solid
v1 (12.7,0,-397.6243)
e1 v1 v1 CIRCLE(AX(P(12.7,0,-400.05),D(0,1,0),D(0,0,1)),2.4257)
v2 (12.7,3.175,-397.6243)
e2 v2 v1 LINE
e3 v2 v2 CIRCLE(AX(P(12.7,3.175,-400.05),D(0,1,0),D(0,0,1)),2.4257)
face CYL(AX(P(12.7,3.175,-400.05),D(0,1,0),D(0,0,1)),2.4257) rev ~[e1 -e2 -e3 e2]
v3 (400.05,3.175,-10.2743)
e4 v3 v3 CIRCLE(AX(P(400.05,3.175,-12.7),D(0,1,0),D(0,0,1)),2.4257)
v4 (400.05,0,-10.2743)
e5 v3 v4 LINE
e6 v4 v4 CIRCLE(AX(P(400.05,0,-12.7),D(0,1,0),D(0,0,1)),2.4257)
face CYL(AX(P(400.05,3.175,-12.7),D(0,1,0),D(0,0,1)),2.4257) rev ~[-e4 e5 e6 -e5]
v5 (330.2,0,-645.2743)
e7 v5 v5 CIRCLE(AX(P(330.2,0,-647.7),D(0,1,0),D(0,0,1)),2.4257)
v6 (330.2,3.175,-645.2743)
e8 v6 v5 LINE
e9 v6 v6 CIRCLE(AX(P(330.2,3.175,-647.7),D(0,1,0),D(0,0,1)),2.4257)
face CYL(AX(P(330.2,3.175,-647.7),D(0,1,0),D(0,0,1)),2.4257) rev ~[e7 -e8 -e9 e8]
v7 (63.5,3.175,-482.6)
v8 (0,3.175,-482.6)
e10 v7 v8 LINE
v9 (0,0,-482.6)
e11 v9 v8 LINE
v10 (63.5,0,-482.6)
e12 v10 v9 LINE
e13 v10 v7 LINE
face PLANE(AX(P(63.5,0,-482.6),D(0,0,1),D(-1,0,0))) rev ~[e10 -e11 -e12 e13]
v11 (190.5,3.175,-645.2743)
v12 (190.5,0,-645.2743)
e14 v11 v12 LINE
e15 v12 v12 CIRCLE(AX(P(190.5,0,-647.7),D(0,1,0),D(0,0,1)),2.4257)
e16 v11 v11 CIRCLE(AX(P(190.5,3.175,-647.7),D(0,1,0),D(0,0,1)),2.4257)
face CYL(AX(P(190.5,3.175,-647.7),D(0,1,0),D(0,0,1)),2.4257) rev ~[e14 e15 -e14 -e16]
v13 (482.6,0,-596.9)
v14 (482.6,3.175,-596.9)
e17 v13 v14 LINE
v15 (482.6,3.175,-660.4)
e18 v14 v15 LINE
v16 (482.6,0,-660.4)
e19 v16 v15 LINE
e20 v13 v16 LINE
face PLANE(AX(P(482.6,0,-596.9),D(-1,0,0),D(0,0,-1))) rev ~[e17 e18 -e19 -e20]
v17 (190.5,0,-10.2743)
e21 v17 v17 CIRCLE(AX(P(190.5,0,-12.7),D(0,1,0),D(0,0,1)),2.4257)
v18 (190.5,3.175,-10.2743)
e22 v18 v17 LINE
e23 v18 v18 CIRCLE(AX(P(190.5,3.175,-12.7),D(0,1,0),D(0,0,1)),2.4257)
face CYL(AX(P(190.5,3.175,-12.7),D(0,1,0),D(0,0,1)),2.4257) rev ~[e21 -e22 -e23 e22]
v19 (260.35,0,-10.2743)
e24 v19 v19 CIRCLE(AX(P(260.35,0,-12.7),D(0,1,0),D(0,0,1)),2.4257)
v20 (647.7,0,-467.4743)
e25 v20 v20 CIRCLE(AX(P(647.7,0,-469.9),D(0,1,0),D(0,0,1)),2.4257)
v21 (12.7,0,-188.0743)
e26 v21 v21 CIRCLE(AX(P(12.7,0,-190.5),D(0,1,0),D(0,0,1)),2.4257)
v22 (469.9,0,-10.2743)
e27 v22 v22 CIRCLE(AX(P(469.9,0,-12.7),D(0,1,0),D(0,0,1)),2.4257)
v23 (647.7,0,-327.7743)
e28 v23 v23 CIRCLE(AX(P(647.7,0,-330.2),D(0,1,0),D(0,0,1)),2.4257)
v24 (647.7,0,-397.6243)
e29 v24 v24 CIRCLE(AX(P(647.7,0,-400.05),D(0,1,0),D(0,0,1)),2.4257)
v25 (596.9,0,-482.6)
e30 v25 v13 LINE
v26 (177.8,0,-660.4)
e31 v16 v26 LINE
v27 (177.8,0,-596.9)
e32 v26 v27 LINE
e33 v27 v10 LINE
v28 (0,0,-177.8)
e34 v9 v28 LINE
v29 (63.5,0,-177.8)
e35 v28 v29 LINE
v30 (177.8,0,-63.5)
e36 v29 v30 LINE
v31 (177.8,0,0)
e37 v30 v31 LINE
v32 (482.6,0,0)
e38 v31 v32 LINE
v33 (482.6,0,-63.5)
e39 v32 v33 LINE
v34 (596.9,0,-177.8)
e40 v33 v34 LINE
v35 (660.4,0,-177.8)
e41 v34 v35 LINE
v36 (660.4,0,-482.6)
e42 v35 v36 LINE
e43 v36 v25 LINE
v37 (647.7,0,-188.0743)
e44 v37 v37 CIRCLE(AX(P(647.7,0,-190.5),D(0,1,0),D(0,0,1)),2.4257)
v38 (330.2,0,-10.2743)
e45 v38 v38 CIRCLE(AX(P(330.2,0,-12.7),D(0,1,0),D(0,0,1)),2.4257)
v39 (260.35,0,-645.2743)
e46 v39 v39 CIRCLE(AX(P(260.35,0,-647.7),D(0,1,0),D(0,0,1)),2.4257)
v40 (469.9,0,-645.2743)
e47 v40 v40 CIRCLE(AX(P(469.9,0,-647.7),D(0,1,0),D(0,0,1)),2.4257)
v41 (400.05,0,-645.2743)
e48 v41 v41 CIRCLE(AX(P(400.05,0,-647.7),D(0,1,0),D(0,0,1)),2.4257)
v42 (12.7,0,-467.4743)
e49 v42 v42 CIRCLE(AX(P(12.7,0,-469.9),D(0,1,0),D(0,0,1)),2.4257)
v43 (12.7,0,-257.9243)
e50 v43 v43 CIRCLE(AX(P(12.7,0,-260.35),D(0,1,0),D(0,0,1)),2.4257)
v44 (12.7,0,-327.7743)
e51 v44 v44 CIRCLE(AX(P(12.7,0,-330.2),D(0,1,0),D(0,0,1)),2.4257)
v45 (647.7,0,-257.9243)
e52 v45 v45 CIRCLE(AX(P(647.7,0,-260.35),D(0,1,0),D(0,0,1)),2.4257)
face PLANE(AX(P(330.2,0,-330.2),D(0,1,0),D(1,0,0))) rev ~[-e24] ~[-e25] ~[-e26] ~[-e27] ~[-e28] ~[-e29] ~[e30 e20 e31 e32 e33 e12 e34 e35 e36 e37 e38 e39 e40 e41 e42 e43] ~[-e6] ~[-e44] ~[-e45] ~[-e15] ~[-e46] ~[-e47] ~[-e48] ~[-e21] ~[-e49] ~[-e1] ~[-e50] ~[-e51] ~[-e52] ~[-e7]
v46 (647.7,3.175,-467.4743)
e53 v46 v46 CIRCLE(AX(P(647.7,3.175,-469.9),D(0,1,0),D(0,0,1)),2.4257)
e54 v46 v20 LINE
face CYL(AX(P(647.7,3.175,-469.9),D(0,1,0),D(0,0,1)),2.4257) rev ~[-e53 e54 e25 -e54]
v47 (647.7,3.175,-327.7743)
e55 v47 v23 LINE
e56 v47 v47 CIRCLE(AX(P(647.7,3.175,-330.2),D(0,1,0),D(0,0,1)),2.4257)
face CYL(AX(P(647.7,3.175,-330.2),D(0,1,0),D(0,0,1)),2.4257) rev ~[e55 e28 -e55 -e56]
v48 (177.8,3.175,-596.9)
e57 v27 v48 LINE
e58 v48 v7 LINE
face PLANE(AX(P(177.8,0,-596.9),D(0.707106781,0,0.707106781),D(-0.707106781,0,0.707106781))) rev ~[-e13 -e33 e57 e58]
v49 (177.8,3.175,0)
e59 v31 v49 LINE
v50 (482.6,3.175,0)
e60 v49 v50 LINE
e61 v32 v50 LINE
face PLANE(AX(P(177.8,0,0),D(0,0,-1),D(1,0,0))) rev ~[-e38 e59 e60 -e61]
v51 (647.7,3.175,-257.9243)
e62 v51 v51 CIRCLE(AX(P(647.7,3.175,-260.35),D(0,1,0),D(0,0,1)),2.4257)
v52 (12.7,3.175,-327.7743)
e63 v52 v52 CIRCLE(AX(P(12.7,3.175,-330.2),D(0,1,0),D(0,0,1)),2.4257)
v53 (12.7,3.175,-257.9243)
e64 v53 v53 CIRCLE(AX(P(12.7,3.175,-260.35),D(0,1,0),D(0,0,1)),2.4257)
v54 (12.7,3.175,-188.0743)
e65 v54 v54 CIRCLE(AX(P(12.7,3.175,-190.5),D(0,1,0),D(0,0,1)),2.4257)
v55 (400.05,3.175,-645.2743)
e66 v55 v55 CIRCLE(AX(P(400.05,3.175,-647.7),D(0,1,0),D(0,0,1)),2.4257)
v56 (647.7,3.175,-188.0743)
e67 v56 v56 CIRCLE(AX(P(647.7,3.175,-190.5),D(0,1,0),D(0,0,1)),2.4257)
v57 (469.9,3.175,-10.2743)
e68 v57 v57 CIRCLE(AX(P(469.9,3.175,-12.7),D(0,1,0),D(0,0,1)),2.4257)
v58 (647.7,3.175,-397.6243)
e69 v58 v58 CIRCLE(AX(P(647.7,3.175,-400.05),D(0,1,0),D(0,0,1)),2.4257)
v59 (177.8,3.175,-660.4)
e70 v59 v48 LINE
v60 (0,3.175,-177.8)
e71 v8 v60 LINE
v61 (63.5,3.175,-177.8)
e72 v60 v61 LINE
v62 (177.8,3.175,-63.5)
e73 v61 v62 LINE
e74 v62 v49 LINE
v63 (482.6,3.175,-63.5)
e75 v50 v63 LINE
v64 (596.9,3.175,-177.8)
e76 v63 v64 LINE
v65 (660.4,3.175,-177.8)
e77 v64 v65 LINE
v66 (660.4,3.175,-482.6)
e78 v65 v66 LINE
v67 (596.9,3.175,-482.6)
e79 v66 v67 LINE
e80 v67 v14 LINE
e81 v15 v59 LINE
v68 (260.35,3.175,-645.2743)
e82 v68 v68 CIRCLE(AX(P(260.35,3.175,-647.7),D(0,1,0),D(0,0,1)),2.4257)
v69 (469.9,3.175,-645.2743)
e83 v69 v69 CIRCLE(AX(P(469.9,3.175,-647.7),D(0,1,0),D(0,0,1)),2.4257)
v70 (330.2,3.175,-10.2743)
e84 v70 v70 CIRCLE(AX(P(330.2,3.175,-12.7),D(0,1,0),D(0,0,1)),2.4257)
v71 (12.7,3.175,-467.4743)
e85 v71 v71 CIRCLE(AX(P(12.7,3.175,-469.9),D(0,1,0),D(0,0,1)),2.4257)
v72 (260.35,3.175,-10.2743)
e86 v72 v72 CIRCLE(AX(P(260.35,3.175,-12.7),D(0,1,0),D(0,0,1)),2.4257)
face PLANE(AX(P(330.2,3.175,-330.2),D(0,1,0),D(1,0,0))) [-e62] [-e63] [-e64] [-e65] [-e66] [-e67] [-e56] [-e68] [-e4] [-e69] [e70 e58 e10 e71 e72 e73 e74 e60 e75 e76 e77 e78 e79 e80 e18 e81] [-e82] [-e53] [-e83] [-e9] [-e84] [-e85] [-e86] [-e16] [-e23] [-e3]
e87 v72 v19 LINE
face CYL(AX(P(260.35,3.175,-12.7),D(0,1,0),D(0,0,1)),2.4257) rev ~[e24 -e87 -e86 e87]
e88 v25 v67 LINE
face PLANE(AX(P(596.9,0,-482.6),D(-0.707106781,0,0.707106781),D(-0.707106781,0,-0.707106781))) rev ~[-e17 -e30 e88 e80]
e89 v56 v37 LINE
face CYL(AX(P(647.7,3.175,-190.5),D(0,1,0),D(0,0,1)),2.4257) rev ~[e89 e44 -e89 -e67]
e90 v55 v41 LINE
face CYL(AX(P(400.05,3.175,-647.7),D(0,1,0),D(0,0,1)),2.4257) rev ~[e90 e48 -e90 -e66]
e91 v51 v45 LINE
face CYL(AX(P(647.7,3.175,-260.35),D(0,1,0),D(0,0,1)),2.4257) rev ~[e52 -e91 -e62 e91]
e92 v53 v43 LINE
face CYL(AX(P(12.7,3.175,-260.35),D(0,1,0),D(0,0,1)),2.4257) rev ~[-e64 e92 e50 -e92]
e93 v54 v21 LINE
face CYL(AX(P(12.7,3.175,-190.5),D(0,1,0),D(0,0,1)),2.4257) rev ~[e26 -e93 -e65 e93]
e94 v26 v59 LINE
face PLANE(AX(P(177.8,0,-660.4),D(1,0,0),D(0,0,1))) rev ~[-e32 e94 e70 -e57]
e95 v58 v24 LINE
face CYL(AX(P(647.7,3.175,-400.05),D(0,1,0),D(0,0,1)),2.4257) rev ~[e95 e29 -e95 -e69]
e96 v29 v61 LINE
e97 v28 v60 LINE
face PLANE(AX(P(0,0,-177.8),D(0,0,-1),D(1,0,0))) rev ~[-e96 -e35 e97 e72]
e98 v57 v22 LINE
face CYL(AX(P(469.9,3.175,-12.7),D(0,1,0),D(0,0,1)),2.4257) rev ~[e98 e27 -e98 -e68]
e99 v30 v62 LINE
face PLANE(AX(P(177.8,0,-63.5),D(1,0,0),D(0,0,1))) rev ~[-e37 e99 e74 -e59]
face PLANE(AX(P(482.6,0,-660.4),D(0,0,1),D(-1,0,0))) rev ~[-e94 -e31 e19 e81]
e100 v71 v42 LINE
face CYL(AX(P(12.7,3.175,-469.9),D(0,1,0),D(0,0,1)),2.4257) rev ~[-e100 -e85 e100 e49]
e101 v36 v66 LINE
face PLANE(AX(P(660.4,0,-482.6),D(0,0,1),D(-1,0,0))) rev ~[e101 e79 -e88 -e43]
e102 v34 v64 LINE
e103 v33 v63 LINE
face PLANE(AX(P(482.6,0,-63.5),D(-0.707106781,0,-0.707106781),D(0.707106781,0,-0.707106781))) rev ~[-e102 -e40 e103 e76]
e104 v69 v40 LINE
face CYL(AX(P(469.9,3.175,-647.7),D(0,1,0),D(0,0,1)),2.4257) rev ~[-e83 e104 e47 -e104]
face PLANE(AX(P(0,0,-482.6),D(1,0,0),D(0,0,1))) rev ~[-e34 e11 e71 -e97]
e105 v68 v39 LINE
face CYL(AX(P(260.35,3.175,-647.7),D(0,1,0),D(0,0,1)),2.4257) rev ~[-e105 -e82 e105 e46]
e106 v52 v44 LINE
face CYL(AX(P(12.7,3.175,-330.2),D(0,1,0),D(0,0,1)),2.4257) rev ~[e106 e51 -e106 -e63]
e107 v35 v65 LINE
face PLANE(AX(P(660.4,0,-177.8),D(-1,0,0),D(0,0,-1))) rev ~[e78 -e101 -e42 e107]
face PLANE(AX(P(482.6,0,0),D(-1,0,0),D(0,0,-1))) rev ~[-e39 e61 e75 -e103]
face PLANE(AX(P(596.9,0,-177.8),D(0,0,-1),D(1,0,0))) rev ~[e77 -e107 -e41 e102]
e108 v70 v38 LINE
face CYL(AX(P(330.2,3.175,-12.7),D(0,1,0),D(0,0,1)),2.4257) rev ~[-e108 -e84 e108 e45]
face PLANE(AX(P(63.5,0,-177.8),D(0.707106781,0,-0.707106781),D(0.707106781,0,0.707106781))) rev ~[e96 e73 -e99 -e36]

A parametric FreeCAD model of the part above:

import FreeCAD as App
import Part
import Sketcher
Q = App.Units.Quantity


def add_polygon(sketch, points):
    """Adds a closed chain of lines whose ends are joined by coincident constraints."""
    first, n = sketch.GeometryCount, len(points)
    for a, b in zip(points, points[1:] + points[:1]):
        sketch.addGeometry(Part.LineSegment(App.Vector(*a, 0), App.Vector(*b, 0)), False)
    for i in range(n):
        sketch.addConstraint(Sketcher.Constraint("Coincident", first + i, 2, first + (i + 1) % n, 1))

doc = App.newDocument("Part")
body = doc.addObject("PartDesign::Body", "Body")

sketch1 = body.newObject("Sketcher::SketchObject", "Sketch")
sketch1.AttachmentSupport = (doc.getObject("XZ_Plane"), [""])
sketch1.MapMode = "FlatFace"
add_polygon(sketch1, [(177.8, -596.9), (63.5, -482.6), (0, -482.6), (0, -177.8), (63.5, -177.8), (177.8, -63.5), (177.8, 0), (482.6, 0), (482.6, -63.5), (596.9, -177.8), (660.4, -177.8), (660.4, -482.6), (596.9, -482.6), (482.6, -596.9), (482.6, -660.4), (177.8, -660.4)])
sketch1.addConstraint([
    Sketcher.Constraint("Horizontal", 1),
    Sketcher.Constraint("Vertical", 2),
    Sketcher.Constraint("Horizontal", 3),
    Sketcher.Constraint("Vertical", 5),
    Sketcher.Constraint("Horizontal", 6),
    Sketcher.Constraint("Vertical", 7),
    Sketcher.Constraint("Horizontal", 9),
    Sketcher.Constraint("Vertical", 10),
    Sketcher.Constraint("Horizontal", 11),
    Sketcher.Constraint("Vertical", 13),
    Sketcher.Constraint("Horizontal", 14),
    Sketcher.Constraint("Vertical", 15),
    Sketcher.Constraint("PointOnObject", 1, 2, -2),
    Sketcher.Constraint("PointOnObject", 5, 2, -1),
    Sketcher.Constraint("Perpendicular", 0, 4),
    Sketcher.Constraint("Perpendicular", 4, 8),
    Sketcher.Constraint("Perpendicular", 8, 12),
    Sketcher.Constraint("Horizontal", 4, 2, 7, 2),
    Sketcher.Constraint("Horizontal", 3, 2, 8, 2),
    Sketcher.Constraint("Horizontal", 1, 2, 10, 2),
    Sketcher.Constraint("Horizontal", 12, 2, 15, 2),
    Sketcher.Constraint("Vertical", 0, 2, 3, 2),
    Sketcher.Constraint("Vertical", 8, 2, 11, 2),
    Sketcher.Constraint("Vertical", 7, 2, 12, 2),
    Sketcher.Constraint("Vertical", 5, 2, 14, 2),
    Sketcher.Constraint("Equal", 3, 9),
    Sketcher.Constraint("Equal", 14, 2),
    Sketcher.Constraint("Equal", 11, 5),
    Sketcher.Constraint("Equal", 7, 13),
    Sketcher.Constraint("DistanceX", 6, 1, 6, 2, Q("12 in")),
    Sketcher.Constraint("DistanceX", 1, 2, 1, 1, Q("2.5 in")),
    Sketcher.Constraint("DistanceY", 0, 2, -1, 1, Q("19 in")),
])
pad1 = body.newObject("PartDesign::Pad", "Pad")
pad1.Profile = sketch1
pad1.Length = Q("0.125 in")
pad1.Reversed = True

sketch2 = body.newObject("Sketcher::SketchObject", "Sketch001")
sketch2.AttachmentSupport = (doc.getObject("XZ_Plane"), [""])
sketch2.MapMode = "FlatFace"
sketch2.AttachmentOffset = App.Placement(App.Vector(0, 0, -0.125 * 25.4), App.Rotation())
sketch2.addGeometry([
    Part.Circle(App.Vector(190.5, -647.7, 0), App.Vector(0, 0, 1), 2.4257),
    Part.Circle(App.Vector(260.35, -647.7, 0), App.Vector(0, 0, 1), 2.4257),
    Part.Circle(App.Vector(469.9, -647.7, 0), App.Vector(0, 0, 1), 2.4257),
    Part.Circle(App.Vector(400.05, -647.7, 0), App.Vector(0, 0, 1), 2.4257),
    Part.Circle(App.Vector(330.2, -647.7, 0), App.Vector(0, 0, 1), 2.4257),
    Part.Circle(App.Vector(647.7, -469.9, 0), App.Vector(0, 0, 1), 2.4257),
    Part.Circle(App.Vector(647.7, -400.05, 0), App.Vector(0, 0, 1), 2.4257),
    Part.Circle(App.Vector(647.7, -330.2, 0), App.Vector(0, 0, 1), 2.4257),
    Part.Circle(App.Vector(647.7, -260.35, 0), App.Vector(0, 0, 1), 2.4257),
    Part.Circle(App.Vector(647.7, -190.5, 0), App.Vector(0, 0, 1), 2.4257),
    Part.Circle(App.Vector(469.9, -12.7, 0), App.Vector(0, 0, 1), 2.4257),
    Part.Circle(App.Vector(400.05, -12.7, 0), App.Vector(0, 0, 1), 2.4257),
    Part.Circle(App.Vector(330.2, -12.7, 0), App.Vector(0, 0, 1), 2.4257),
    Part.Circle(App.Vector(260.35, -12.7, 0), App.Vector(0, 0, 1), 2.4257),
    Part.Circle(App.Vector(190.5, -12.7, 0), App.Vector(0, 0, 1), 2.4257),
    Part.Circle(App.Vector(12.7, -190.5, 0), App.Vector(0, 0, 1), 2.4257),
    Part.Circle(App.Vector(12.7, -260.35, 0), App.Vector(0, 0, 1), 2.4257),
    Part.Circle(App.Vector(12.7, -330.2, 0), App.Vector(0, 0, 1), 2.4257),
    Part.Circle(App.Vector(12.7, -400.05, 0), App.Vector(0, 0, 1), 2.4257),
    Part.Circle(App.Vector(12.7, -469.9, 0), App.Vector(0, 0, 1), 2.4257),
], False)
sketch2.addConstraint([
    Sketcher.Constraint("Equal", 0, 1),
    Sketcher.Constraint("Equal", 1, 2),
    Sketcher.Constraint("Equal", 2, 3),
    Sketcher.Constraint("Equal", 3, 4),
    Sketcher.Constraint("Equal", 4, 5),
    Sketcher.Constraint("Equal", 5, 6),
    Sketcher.Constraint("Equal", 6, 7),
    Sketcher.Constraint("Equal", 7, 8),
    Sketcher.Constraint("Equal", 8, 9),
    Sketcher.Constraint("Equal", 9, 10),
    Sketcher.Constraint("Equal", 10, 11),
    Sketcher.Constraint("Equal", 11, 12),
    Sketcher.Constraint("Equal", 12, 13),
    Sketcher.Constraint("Equal", 13, 14),
    Sketcher.Constraint("Equal", 14, 15),
    Sketcher.Constraint("Equal", 15, 16),
    Sketcher.Constraint("Equal", 16, 17),
    Sketcher.Constraint("Equal", 17, 18),
    Sketcher.Constraint("Equal", 18, 19),
    Sketcher.Constraint("Horizontal", 0, 3, 1, 3),
    Sketcher.Constraint("Horizontal", 1, 3, 2, 3),
    Sketcher.Constraint("Horizontal", 2, 3, 3, 3),
    Sketcher.Constraint("Horizontal", 3, 3, 4, 3),
    Sketcher.Constraint("Horizontal", 10, 3, 11, 3),
    Sketcher.Constraint("Horizontal", 11, 3, 12, 3),
    Sketcher.Constraint("Horizontal", 12, 3, 13, 3),
    Sketcher.Constraint("Horizontal", 13, 3, 14, 3),
    Sketcher.Constraint("Horizontal", 9, 3, 15, 3),
    Sketcher.Constraint("Horizontal", 8, 3, 16, 3),
    Sketcher.Constraint("Horizontal", 7, 3, 17, 3),
    Sketcher.Constraint("Horizontal", 6, 3, 18, 3),
    Sketcher.Constraint("Horizontal", 5, 3, 19, 3),
    Sketcher.Constraint("Vertical", 5, 3, 6, 3),
    Sketcher.Constraint("Vertical", 6, 3, 7, 3),
    Sketcher.Constraint("Vertical", 7, 3, 8, 3),
    Sketcher.Constraint("Vertical", 8, 3, 9, 3),
    Sketcher.Constraint("Vertical", 2, 3, 10, 3),
    Sketcher.Constraint("Vertical", 3, 3, 11, 3),
    Sketcher.Constraint("Vertical", 4, 3, 12, 3),
    Sketcher.Constraint("Vertical", 1, 3, 13, 3),
    Sketcher.Constraint("Vertical", 0, 3, 14, 3),
    Sketcher.Constraint("Vertical", 15, 3, 16, 3),
    Sketcher.Constraint("Vertical", 16, 3, 17, 3),
    Sketcher.Constraint("Vertical", 17, 3, 18, 3),
    Sketcher.Constraint("Vertical", 18, 3, 19, 3),
    Sketcher.Constraint("Diameter", 0, Q("0.191 in")),
    Sketcher.Constraint("DistanceX", -1, 1, 4, 3, Q("13 in")),
    Sketcher.Constraint("DistanceY", 7, 3, -1, 1, Q("13 in")),
    Sketcher.Constraint("DistanceX", 0, 3, 2, 3, Q("11 in")),
    Sketcher.Constraint("DistanceX", 2, 3, 5, 3, Q("7 in")),
    Sketcher.Constraint("DistanceY", 2, 3, 5, 3, Q("7 in")),
    Sketcher.Constraint("DistanceY", 5, 3, 9, 3, Q("11 in")),
    Sketcher.Constraint("DistanceY", 9, 3, 10, 3, Q("7 in")),
    Sketcher.Constraint("DistanceX", 15, 3, 14, 3, Q("7 in")),
    Sketcher.Constraint("DistanceX", -1, 1, 0, 3, Q("7.5 in")),
    Sketcher.Constraint("DistanceY", 0, 3, -1, 1, Q("25.5 in")),
    Sketcher.Constraint("DistanceX", 1, 3, 3, 3, Q("5.5 in")),
    Sketcher.Constraint("DistanceY", 6, 3, 8, 3, Q("5.5 in")),
    Sketcher.Constraint("DistanceX", -1, 1, 1, 3, Q("10.25 in")),
    Sketcher.Constraint("DistanceY", 6, 3, -1, 1, Q("15.75 in")),
])
pocket1 = body.newObject("PartDesign::Pocket", "Pocket")
pocket1.Profile = sketch2
pocket1.Length = Q("0.125 in")
pocket1.Reversed = True

doc.recompute()
